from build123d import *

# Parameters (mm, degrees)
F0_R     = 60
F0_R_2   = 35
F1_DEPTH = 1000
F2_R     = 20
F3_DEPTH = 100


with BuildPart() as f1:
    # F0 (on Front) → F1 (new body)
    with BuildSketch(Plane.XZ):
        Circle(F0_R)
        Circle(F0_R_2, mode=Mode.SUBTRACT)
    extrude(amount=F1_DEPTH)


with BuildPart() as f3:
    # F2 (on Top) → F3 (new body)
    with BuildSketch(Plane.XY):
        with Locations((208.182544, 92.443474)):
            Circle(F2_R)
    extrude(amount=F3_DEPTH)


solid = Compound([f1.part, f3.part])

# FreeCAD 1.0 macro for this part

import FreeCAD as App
import Part
import Sketcher

V = App.Vector

doc = App.newDocument("Part")
body = doc.addObject("PartDesign::Body", "Body")

# Sketch on XZ plane
sketch1 = doc.addObject("Sketcher::SketchObject", "Sketch")
body.addObject(sketch1)
sketch1.AttachmentSupport = (doc.XZ_Plane, [""])
sketch1.MapMode = "FlatFace"
sketch1.addGeometry([
    Part.Circle(V(0, 0, 0), V(0, 0, 1), 60),
    Part.Circle(V(0, 0, 0), V(0, 0, 1), 35),
], False)
sketch1.addConstraint([
    Sketcher.Constraint("Coincident", 0, 3, -1, 1),
    Sketcher.Constraint("Coincident", 1, 3, -1, 1),
    Sketcher.Constraint("Diameter", 0, 120.0),
    Sketcher.Constraint("Diameter", 1, 70.0),
])
pad1 = doc.addObject("PartDesign::Pad", "Pad")
body.addObject(pad1)
pad1.Profile = sketch1
pad1.Length = 1000
body2 = doc.addObject("PartDesign::Body", "Body001")

# Sketch on XY plane
sketch2 = doc.addObject("Sketcher::SketchObject", "Sketch001")
body2.addObject(sketch2)
sketch2.AttachmentSupport = (doc.getObject("XY_Plane001"), [""])
sketch2.MapMode = "FlatFace"
sketch2.addGeometry(Part.Circle(V(208, 92, 0), V(0, 0, 1), 20), False)
sketch2.addConstraint([
    Sketcher.Constraint("Diameter", 0, 40.0),
    Sketcher.Constraint("DistanceX", -1, 1, 0, 3, 208.182544),
    Sketcher.Constraint("DistanceY", -1, 1, 0, 3, 92.443474),
])
pad2 = doc.addObject("PartDesign::Pad", "Pad001")
body2.addObject(pad2)
pad2.Profile = sketch2
pad2.Length = 100

doc.recompute()
